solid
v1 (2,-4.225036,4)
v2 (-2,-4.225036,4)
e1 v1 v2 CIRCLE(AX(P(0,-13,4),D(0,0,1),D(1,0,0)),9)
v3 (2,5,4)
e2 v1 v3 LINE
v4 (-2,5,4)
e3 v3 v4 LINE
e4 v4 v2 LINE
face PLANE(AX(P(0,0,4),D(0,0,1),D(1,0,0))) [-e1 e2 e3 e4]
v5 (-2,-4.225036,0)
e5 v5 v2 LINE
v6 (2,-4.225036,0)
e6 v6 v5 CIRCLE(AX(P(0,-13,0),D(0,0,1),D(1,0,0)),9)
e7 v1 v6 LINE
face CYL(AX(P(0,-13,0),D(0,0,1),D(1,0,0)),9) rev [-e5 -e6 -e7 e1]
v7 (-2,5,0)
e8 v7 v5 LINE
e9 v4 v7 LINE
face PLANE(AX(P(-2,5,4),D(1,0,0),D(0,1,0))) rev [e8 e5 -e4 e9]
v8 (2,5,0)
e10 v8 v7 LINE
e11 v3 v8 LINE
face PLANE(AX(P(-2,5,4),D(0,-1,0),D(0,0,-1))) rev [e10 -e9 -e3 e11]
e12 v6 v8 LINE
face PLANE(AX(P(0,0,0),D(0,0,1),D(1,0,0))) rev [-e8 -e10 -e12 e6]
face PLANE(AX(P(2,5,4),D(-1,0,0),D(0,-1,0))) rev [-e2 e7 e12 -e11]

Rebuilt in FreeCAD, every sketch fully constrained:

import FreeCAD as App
import Part
import Sketcher
Q = App.Units.Quantity

doc = App.newDocument("Part")
body = doc.addObject("PartDesign::Body", "Body")

# Sketch on XY plane
sketch1 = body.newObject("Sketcher::SketchObject", "Sketch")
sketch1.AttachmentSupport = (doc.getObject("XY_Plane"), [""])
sketch1.MapMode = "FlatFace"
sketch1.addGeometry([
    Part.LineSegment(App.Vector(-2, 5, 0), App.Vector(-2, -5, 0)),
    Part.LineSegment(App.Vector(-2, -5, 0), App.Vector(2, -5, 0)),
    Part.LineSegment(App.Vector(2, -5, 0), App.Vector(2, 5, 0)),
    Part.LineSegment(App.Vector(2, 5, 0), App.Vector(-2, 5, 0)),
], False)
sketch1.addConstraint([
    Sketcher.Constraint("Coincident", 0, 2, 1, 1),
    Sketcher.Constraint("Coincident", 1, 2, 2, 1),
    Sketcher.Constraint("Coincident", 2, 2, 3, 1),
    Sketcher.Constraint("Coincident", 3, 2, 0, 1),
    Sketcher.Constraint("Vertical", 0),
    Sketcher.Constraint("Horizontal", 1),
    Sketcher.Constraint("Vertical", 2),
    Sketcher.Constraint("Horizontal", 3),
    Sketcher.Constraint("Symmetric", 0, 2, 2, 2, -1, 1),
    Sketcher.Constraint("DistanceX", 1, 1, 1, 2, Q("4 mm")),
    Sketcher.Constraint("DistanceY", 0, 2, 0, 1, Q("10 mm")),
])
pad1 = body.newObject("PartDesign::Pad", "Pad")
pad1.Profile = sketch1
pad1.Length = 4

# Sketch on XY plane
sketch2 = body.newObject("Sketcher::SketchObject", "Sketch001")
sketch2.AttachmentSupport = (doc.getObject("XY_Plane"), [""])
sketch2.MapMode = "FlatFace"
sketch2.AttachmentOffset = App.Placement(App.Vector(0, 0, 4), App.Rotation())
sketch2.addGeometry(Part.Circle(App.Vector(0, -13, 0), App.Vector(0, 0, 1), 9), False)
sketch2.addConstraint([
    Sketcher.Constraint("PointOnObject", 0, 3, -2),
    Sketcher.Constraint("Diameter", 0, Q("18 mm")),
    Sketcher.Constraint("DistanceY", 0, 3, -1, 1, Q("13 mm")),
])
pocket1 = body.newObject("PartDesign::Pocket", "Pocket")
pocket1.Profile = sketch2
pocket1.Length = 4

doc.recompute()
